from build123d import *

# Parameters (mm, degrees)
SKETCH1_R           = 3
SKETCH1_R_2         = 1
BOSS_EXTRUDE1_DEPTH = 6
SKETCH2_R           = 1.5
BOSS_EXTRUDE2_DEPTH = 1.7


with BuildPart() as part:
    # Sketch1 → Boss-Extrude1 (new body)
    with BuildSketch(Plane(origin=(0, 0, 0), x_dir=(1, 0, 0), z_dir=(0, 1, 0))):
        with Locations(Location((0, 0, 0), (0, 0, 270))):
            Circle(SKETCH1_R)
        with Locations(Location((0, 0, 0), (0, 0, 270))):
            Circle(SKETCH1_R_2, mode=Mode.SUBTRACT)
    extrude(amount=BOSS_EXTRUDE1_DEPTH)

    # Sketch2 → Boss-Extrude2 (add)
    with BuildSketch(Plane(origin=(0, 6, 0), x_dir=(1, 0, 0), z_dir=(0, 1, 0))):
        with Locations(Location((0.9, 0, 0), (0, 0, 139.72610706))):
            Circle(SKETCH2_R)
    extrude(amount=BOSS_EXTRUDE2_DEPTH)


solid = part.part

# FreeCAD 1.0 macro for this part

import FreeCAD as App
import Part
import Sketcher

V = App.Vector

doc = App.newDocument("Part")
body = doc.addObject("PartDesign::Body", "Body")

# Sketch on XZ plane
sketch1 = doc.addObject("Sketcher::SketchObject", "Sketch")
body.addObject(sketch1)
sketch1.AttachmentSupport = (doc.XZ_Plane, [""])
sketch1.MapMode = "FlatFace"
sketch1.addGeometry([
    Part.Circle(V(0, 0, 0), V(0, 0, 1), 3),
    Part.Circle(V(0, 0, 0), V(0, 0, 1), 1),
], False)
sketch1.addConstraint([
    Sketcher.Constraint("Coincident", 0, 3, -1, 1),
    Sketcher.Constraint("Coincident", 1, 3, -1, 1),
    Sketcher.Constraint("Diameter", 0, 6.0),
    Sketcher.Constraint("Diameter", 1, 2.0),
])
pad1 = doc.addObject("PartDesign::Pad", "Pad")
body.addObject(pad1)
pad1.Profile = sketch1
pad1.Length = 6
pad1.Reversed = True

# Sketch on XZ plane
sketch2 = doc.addObject("Sketcher::SketchObject", "Sketch001")
body.addObject(sketch2)
sketch2.AttachmentSupport = (doc.XZ_Plane, [""])
sketch2.MapMode = "FlatFace"
sketch2.AttachmentOffset = App.Placement(V(0, 0, -6), App.Rotation())
sketch2.addGeometry(Part.Circle(V(0.9, 0, 0), V(0, 0, 1), 1.5), False)
sketch2.addConstraint([
    Sketcher.Constraint("PointOnObject", 0, 3, -1),
    Sketcher.Constraint("Diameter", 0, 3.0),
    Sketcher.Constraint("DistanceX", -1, 1, 0, 3, 0.9),
])
pad2 = doc.addObject("PartDesign::Pad", "Pad001")
body.addObject(pad2)
pad2.Profile = sketch2
pad2.Length = 1.7
pad2.Reversed = True

doc.recompute()
